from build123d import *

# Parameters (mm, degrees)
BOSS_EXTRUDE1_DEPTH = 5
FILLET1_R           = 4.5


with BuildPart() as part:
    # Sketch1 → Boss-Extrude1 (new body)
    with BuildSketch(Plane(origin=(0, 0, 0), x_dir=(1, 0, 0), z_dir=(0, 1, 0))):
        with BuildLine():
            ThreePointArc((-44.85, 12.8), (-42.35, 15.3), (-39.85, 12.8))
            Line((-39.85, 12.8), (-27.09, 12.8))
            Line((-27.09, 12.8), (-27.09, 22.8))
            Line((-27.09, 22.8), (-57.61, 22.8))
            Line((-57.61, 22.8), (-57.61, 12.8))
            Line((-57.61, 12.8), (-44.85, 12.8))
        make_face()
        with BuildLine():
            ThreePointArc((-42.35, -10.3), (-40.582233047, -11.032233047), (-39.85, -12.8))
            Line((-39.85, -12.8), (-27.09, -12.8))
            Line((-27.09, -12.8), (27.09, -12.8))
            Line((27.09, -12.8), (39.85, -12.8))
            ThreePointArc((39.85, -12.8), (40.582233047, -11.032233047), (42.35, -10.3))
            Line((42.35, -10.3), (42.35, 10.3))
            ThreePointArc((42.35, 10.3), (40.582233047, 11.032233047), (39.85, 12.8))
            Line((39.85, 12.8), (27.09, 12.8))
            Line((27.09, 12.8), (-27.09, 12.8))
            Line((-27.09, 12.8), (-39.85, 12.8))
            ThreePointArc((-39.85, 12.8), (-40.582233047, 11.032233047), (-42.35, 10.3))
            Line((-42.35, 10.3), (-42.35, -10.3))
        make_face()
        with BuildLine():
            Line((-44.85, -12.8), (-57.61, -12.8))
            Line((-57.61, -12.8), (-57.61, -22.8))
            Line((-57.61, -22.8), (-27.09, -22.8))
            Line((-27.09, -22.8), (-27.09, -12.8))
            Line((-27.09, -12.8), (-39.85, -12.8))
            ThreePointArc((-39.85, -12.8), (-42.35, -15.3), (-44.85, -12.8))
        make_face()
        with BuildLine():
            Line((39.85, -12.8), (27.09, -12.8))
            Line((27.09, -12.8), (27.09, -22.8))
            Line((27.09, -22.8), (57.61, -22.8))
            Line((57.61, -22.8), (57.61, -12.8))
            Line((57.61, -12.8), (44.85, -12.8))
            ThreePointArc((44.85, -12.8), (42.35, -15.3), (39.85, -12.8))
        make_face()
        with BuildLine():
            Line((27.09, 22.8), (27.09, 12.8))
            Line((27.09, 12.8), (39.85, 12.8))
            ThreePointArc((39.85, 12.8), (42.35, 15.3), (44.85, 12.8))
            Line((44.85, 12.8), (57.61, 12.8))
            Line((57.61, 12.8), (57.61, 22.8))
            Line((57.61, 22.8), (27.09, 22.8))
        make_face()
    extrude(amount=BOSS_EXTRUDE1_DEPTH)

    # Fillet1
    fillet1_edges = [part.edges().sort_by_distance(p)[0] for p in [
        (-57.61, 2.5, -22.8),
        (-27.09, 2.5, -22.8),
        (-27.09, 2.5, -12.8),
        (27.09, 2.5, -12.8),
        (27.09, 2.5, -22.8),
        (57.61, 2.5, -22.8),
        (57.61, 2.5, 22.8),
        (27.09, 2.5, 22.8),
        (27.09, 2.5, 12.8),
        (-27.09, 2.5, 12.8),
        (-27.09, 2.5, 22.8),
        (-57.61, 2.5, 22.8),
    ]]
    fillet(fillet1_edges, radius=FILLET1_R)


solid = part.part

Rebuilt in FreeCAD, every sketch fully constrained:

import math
import FreeCAD as App
import Part
import Sketcher
from FreeCAD import Vector


def edges_at(feature, points):
    """Names of the edges that pass closest to the given points."""
    edges = feature.Shape.Edges
    near = lambda p: min(range(len(edges)), key=lambda i: edges[i].distToShape(Part.Vertex(*p))[0])
    return sorted({f"Edge{near(p) + 1}" for p in points})

doc = App.newDocument("Part")
body = doc.addObject("PartDesign::Body", "Body")

sketch1 = body.newObject("Sketcher::SketchObject", "Sketch")
sketch1.AttachmentSupport = (doc.getObject("XZ_Plane"), [""])
sketch1.MapMode = "FlatFace"
sketch1.addGeometry([
    Part.ArcOfCircle(Part.Circle(Vector(-42.35, -12.8, 0), Vector(0, 0, 1), 2.5), math.radians(180), math.radians(360)),
    Part.ArcOfCircle(Part.Circle(Vector(-42.35, -12.8, 0), Vector(0, 0, 1), 2.5), math.radians(0), math.radians(90)),
    Part.LineSegment(Vector(-42.35, -10.3, 0), Vector(-42.35, 10.3, 0)),
    Part.ArcOfCircle(Part.Circle(Vector(-42.35, 12.8, 0), Vector(0, 0, 1), 2.5), math.radians(-90), math.radians(0)),
    Part.ArcOfCircle(Part.Circle(Vector(-42.35, 12.8, 0), Vector(0, 0, 1), 2.5), math.radians(0), math.radians(180)),
    Part.LineSegment(Vector(-44.85, 12.8, 0), Vector(-57.61, 12.8, 0)),
    Part.LineSegment(Vector(-57.61, 12.8, 0), Vector(-57.61, 22.8, 0)),
    Part.LineSegment(Vector(-57.61, 22.8, 0), Vector(-27.09, 22.8, 0)),
    Part.LineSegment(Vector(-27.09, 22.8, 0), Vector(-27.09, 12.8, 0)),
    Part.LineSegment(Vector(-27.09, 12.8, 0), Vector(27.09, 12.8, 0)),
    Part.LineSegment(Vector(27.09, 12.8, 0), Vector(27.09, 22.8, 0)),
    Part.LineSegment(Vector(27.09, 22.8, 0), Vector(57.61, 22.8, 0)),
    Part.LineSegment(Vector(57.61, 22.8, 0), Vector(57.61, 12.8, 0)),
    Part.LineSegment(Vector(57.61, 12.8, 0), Vector(44.85, 12.8, 0)),
    Part.ArcOfCircle(Part.Circle(Vector(42.35, 12.8, 0), Vector(0, 0, 1), 2.5), math.radians(0), math.radians(180)),
    Part.ArcOfCircle(Part.Circle(Vector(42.35, 12.8, 0), Vector(0, 0, 1), 2.5), math.radians(180), math.radians(270)),
    Part.LineSegment(Vector(42.35, 10.3, 0), Vector(42.35, -10.3, 0)),
    Part.ArcOfCircle(Part.Circle(Vector(42.35, -12.8, 0), Vector(0, 0, 1), 2.5), math.radians(90), math.radians(180)),
    Part.ArcOfCircle(Part.Circle(Vector(42.35, -12.8, 0), Vector(0, 0, 1), 2.5), math.radians(180), math.radians(360)),
    Part.LineSegment(Vector(44.85, -12.8, 0), Vector(57.61, -12.8, 0)),
    Part.LineSegment(Vector(57.61, -12.8, 0), Vector(57.61, -22.8, 0)),
    Part.LineSegment(Vector(57.61, -22.8, 0), Vector(27.09, -22.8, 0)),
    Part.LineSegment(Vector(27.09, -22.8, 0), Vector(27.09, -12.8, 0)),
    Part.LineSegment(Vector(27.09, -12.8, 0), Vector(-27.09, -12.8, 0)),
    Part.LineSegment(Vector(-27.09, -12.8, 0), Vector(-27.09, -22.8, 0)),
    Part.LineSegment(Vector(-27.09, -22.8, 0), Vector(-57.61, -22.8, 0)),
    Part.LineSegment(Vector(-57.61, -22.8, 0), Vector(-57.61, -12.8, 0)),
    Part.LineSegment(Vector(-57.61, -12.8, 0), Vector(-44.85, -12.8, 0)),
], False)
sketch1.addConstraint([
    Sketcher.Constraint("Tangent", 0, 2, 1, 1),
    Sketcher.Constraint("Coincident", 1, 2, 2, 1),
    Sketcher.Constraint("Coincident", 2, 2, 3, 1),
    Sketcher.Constraint("Tangent", 3, 2, 4, 1),
    Sketcher.Constraint("Coincident", 4, 2, 5, 1),
    Sketcher.Constraint("Coincident", 5, 2, 6, 1),
    Sketcher.Constraint("Coincident", 6, 2, 7, 1),
    Sketcher.Constraint("Coincident", 7, 2, 8, 1),
    Sketcher.Constraint("Coincident", 8, 2, 9, 1),
    Sketcher.Constraint("Coincident", 9, 2, 10, 1),
    Sketcher.Constraint("Coincident", 10, 2, 11, 1),
    Sketcher.Constraint("Coincident", 11, 2, 12, 1),
    Sketcher.Constraint("Coincident", 12, 2, 13, 1),
    Sketcher.Constraint("Coincident", 13, 2, 14, 1),
    Sketcher.Constraint("Tangent", 14, 2, 15, 1),
    Sketcher.Constraint("Coincident", 15, 2, 16, 1),
    Sketcher.Constraint("Coincident", 16, 2, 17, 1),
    Sketcher.Constraint("Tangent", 17, 2, 18, 1),
    Sketcher.Constraint("Coincident", 18, 2, 19, 1),
    Sketcher.Constraint("Coincident", 19, 2, 20, 1),
    Sketcher.Constraint("Coincident", 20, 2, 21, 1),
    Sketcher.Constraint("Coincident", 21, 2, 22, 1),
    Sketcher.Constraint("Coincident", 22, 2, 23, 1),
    Sketcher.Constraint("Coincident", 23, 2, 24, 1),
    Sketcher.Constraint("Coincident", 24, 2, 25, 1),
    Sketcher.Constraint("Coincident", 25, 2, 26, 1),
    Sketcher.Constraint("Coincident", 26, 2, 27, 1),
    Sketcher.Constraint("Coincident", 27, 2, 0, 1),
    Sketcher.Constraint("Vertical", 2),
    Sketcher.Constraint("Horizontal", 5),
    Sketcher.Constraint("Vertical", 6),
    Sketcher.Constraint("Horizontal", 7),
    Sketcher.Constraint("Vertical", 8),
    Sketcher.Constraint("Horizontal", 9),
    Sketcher.Constraint("Vertical", 10),
    Sketcher.Constraint("Horizontal", 11),
    Sketcher.Constraint("Vertical", 12),
    Sketcher.Constraint("Horizontal", 13),
    Sketcher.Constraint("Vertical", 16),
    Sketcher.Constraint("Horizontal", 19),
    Sketcher.Constraint("Vertical", 20),
    Sketcher.Constraint("Horizontal", 21),
    Sketcher.Constraint("Vertical", 22),
    Sketcher.Constraint("Horizontal", 23),
    Sketcher.Constraint("Vertical", 24),
    Sketcher.Constraint("Horizontal", 25),
    Sketcher.Constraint("Vertical", 26),
    Sketcher.Constraint("Horizontal", 27),
    Sketcher.Constraint("Equal", 0, 1),
    Sketcher.Constraint("Equal", 1, 3),
    Sketcher.Constraint("Equal", 3, 4),
    Sketcher.Constraint("Equal", 4, 14),
    Sketcher.Constraint("Equal", 14, 15),
    Sketcher.Constraint("Equal", 15, 17),
    Sketcher.Constraint("Equal", 17, 18),
    Sketcher.Constraint("Symmetric", 0, 3, 14, 3, -1, 1),
    Sketcher.Constraint("Symmetric", 3, 3, 17, 3, -1, 1),
    Sketcher.Constraint("Symmetric", 5, 2, 19, 2, -1, 1),
    Sketcher.Constraint("Symmetric", 7, 2, 21, 2, -1, 1),
    Sketcher.Constraint("Symmetric", 9, 2, 23, 2, -1, 1),
    Sketcher.Constraint("Symmetric", 11, 2, 25, 2, -1, 1),
    Sketcher.Constraint("Symmetric", 3, 3, 14, 3, -2),
    Sketcher.Constraint("Symmetric", 7, 2, 10, 2, -2),
    Sketcher.Constraint("Symmetric", 5, 2, 12, 2, -2),
    Sketcher.Constraint("Horizontal", 18, 3, 0, 2),
    Sketcher.Constraint("Horizontal", 15, 3, 3, 2),
    Sketcher.Constraint("Horizontal", 3, 2, 4, 2),
    Sketcher.Constraint("Horizontal", 5, 2, 8, 2),
    Sketcher.Constraint("Horizontal", 13, 2, 14, 2),
    Sketcher.Constraint("Horizontal", 0, 2, 17, 2),
    Sketcher.Constraint("Horizontal", 23, 2, 26, 2),
    Sketcher.Constraint("Vertical", 4, 3, 1, 2),
    Sketcher.Constraint("Vertical", 18, 3, 15, 2),
    Sketcher.Constraint("Radius", 0, 2.5),
    Sketcher.Constraint("DistanceY", 6, 1, 6, 2, 10.0),
    Sketcher.Constraint("DistanceY", 2, 1, 2, 2, 20.6),
    Sketcher.Constraint("DistanceX", 5, 2, 5, 1, 12.76),
    Sketcher.Constraint("DistanceX", 7, 1, 7, 2, 30.52),
    Sketcher.Constraint("DistanceX", 9, 1, 9, 2, 54.18),
])
pad1 = body.newObject("PartDesign::Pad", "Pad")
pad1.Profile = sketch1
pad1.Length = 5
pad1.Reversed = True
doc.recompute()

fillet = body.newObject("PartDesign::Fillet", "Fillet")
fillet.Base = (pad1, edges_at(pad1, [
    (-57.61, 2.5, -22.8),
    (-27.09, 2.5, -22.8),
    (-27.09, 2.5, -12.8),
    (27.09, 2.5, -12.8),
    (27.09, 2.5, -22.8),
    (57.61, 2.5, -22.8),
    (57.61, 2.5, 22.8),
    (27.09, 2.5, 22.8),
    (27.09, 2.5, 12.8),
    (-27.09, 2.5, 12.8),
    (-27.09, 2.5, 22.8),
    (-57.61, 2.5, 22.8),
]))
fillet.Radius = 4.5

doc.recompute()
